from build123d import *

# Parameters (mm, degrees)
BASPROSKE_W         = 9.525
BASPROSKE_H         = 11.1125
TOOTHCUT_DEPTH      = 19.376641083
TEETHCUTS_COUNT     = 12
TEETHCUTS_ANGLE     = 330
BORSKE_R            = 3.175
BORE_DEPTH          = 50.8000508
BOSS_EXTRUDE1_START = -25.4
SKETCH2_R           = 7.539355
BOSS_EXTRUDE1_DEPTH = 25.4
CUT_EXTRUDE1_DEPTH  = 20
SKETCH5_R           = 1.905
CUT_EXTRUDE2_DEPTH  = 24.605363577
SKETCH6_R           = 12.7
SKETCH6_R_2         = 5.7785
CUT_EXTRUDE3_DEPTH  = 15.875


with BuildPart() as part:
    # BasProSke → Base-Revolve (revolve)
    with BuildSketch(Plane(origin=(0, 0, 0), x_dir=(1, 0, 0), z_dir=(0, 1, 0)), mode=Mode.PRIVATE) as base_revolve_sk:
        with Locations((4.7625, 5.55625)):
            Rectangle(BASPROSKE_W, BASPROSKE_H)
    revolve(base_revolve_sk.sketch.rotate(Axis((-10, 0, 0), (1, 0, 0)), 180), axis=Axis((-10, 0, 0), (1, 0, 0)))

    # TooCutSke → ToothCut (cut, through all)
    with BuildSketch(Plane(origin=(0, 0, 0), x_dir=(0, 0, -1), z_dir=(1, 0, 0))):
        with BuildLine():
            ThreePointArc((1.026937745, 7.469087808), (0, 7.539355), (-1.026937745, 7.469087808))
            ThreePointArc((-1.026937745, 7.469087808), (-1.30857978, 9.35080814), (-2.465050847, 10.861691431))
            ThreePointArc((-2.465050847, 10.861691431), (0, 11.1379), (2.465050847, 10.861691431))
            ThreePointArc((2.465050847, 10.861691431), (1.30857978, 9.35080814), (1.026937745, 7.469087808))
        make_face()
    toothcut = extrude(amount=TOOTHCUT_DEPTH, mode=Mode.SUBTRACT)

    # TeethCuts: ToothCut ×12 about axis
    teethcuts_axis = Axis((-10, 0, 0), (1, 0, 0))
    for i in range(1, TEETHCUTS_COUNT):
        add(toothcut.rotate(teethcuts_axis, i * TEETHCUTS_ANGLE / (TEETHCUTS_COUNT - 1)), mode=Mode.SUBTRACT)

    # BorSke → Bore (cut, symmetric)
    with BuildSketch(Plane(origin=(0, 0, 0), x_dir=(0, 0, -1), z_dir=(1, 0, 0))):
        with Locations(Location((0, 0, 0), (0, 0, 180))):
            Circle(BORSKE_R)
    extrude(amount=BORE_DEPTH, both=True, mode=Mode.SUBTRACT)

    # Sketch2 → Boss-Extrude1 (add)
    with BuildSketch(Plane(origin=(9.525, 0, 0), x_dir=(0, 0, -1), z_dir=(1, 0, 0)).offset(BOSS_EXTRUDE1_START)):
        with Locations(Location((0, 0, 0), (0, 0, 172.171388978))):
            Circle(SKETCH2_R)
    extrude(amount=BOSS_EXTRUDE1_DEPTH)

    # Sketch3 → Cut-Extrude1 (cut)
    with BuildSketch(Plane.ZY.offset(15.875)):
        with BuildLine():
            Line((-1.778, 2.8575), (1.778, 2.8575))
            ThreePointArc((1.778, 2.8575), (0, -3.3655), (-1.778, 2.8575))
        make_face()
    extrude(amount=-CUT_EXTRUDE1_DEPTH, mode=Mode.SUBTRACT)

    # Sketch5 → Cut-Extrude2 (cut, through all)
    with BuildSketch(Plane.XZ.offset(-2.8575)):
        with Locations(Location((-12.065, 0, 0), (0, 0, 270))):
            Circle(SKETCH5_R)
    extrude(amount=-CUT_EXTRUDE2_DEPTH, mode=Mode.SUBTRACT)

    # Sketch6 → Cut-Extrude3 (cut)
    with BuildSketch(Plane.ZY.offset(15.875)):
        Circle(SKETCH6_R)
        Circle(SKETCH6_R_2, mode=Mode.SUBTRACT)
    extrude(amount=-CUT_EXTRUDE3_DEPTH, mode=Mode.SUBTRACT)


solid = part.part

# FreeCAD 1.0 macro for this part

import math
import FreeCAD as App
import Part
import Sketcher
from FreeCAD import Vector
Q = App.Units.Quantity


def add_polygon(sketch, points):
    """Adds a closed chain of lines whose ends are joined by coincident constraints."""
    first, n = sketch.GeometryCount, len(points)
    for a, b in zip(points, points[1:] + points[:1]):
        sketch.addGeometry(Part.LineSegment(App.Vector(*a, 0), App.Vector(*b, 0)), False)
    for i in range(n):
        sketch.addConstraint(Sketcher.Constraint("Coincident", first + i, 2, first + (i + 1) % n, 1))

doc = App.newDocument("Part")
params = doc.addObject("Spreadsheet::Sheet", "Params")
for row, (alias, value) in enumerate([
    ("sketch1_width", "0.375 in"),
    ("sketch1_height", "0.4375 in"),
    ("revolution_angle", "360 deg"),
    ("sketch2_radius", "0.15 in"),
    ("sketch3_diameter", "0.25 in"),
    ("pocket2_length", "101.600102 mm"),
    ("pad1_length", "1 in"),
    ("sketch5_height", "0.14 in"),
    ("pocket3_length", "20 mm"),
    ("sketch6_diameter", "0.15 in"),
    ("sketch7_diameter", "1 in"),
    ("sketch7_diameter2", "0.455 in"),
    ("pocket5_length", "0.625 in"),
], start=1):
    params.set(f"A{row}", alias)
    params.set(f"B{row}", "=" + value)
    params.setAlias(f"B{row}", alias)

body = doc.addObject("PartDesign::Body", "Body")

# Sketch on XZ plane
sketch1 = body.newObject("Sketcher::SketchObject", "Sketch")
sketch1.AttachmentSupport = (doc.getObject("XZ_Plane"), [""])
sketch1.MapMode = "FlatFace"
add_polygon(sketch1, [(0, -11), (0, 0), (10, 0), (10, -11)])  # lines 0-3
sketch1.addConstraint(Sketcher.Constraint("Vertical", 0))
sketch1.addConstraint(Sketcher.Constraint("Horizontal", 1))
sketch1.addConstraint(Sketcher.Constraint("Vertical", 2))
sketch1.addConstraint(Sketcher.Constraint("Horizontal", 3))
sketch1.addConstraint(Sketcher.Constraint("Coincident", 0, 2, -1, 1))
sketch1.addConstraint(Sketcher.Constraint("DistanceX", 1, 1, 1, 2, Q("0.375 in")))
sketch1.addConstraint(Sketcher.Constraint("DistanceY", 0, 1, 0, 2, Q("0.4375 in")))
sketch1.setExpression("Constraints[9]", "Params.sketch1_width")
sketch1.setExpression("Constraints[10]", "Params.sketch1_height")
revolution = body.newObject("PartDesign::Revolution", "Revolution")
revolution.Profile = sketch1
revolution.ReferenceAxis = (sketch1, ["H_Axis"])
revolution.setExpression("Angle", "Params.revolution_angle")

# Sketch on YZ plane
sketch2 = body.newObject("Sketcher::SketchObject", "Sketch001")
sketch2.AttachmentSupport = (doc.getObject("YZ_Plane"), [""])
sketch2.MapMode = "FlatFace"
sketch2.addGeometry(Part.ArcOfCircle(Part.Circle(Vector(0, 0, 0), Vector(0, 0, 1), 7.5), math.radians(-7.83), math.radians(7.83)), False)
sketch2.addGeometry(Part.ArcOfCircle(Part.Circle(Vector(7.9, -4.8, 0), Vector(0, 0, 1), 3.8), math.radians(38), math.radians(96)), False)
sketch2.addGeometry(Part.ArcOfCircle(Part.Circle(Vector(0, 0, 0), Vector(0, 0, 1), 11.1), math.radians(-13), math.radians(13)), False)
sketch2.addGeometry(Part.ArcOfCircle(Part.Circle(Vector(7.9, 4.8, 0), Vector(0, 0, 1), 3.8), math.radians(-96), math.radians(-38)), False)
sketch2.addConstraint(Sketcher.Constraint("Coincident", 0, 1, 1, 2))
sketch2.addConstraint(Sketcher.Constraint("Coincident", 1, 1, 2, 1))
sketch2.addConstraint(Sketcher.Constraint("Coincident", 2, 2, 3, 2))
sketch2.addConstraint(Sketcher.Constraint("Coincident", 3, 1, 0, 2))
sketch2.addConstraint(Sketcher.Constraint("Coincident", 0, 3, -1, 1))
sketch2.addConstraint(Sketcher.Constraint("Coincident", 2, 3, -1, 1))
sketch2.addConstraint(Sketcher.Constraint("Equal", 1, 3))
sketch2.addConstraint(Sketcher.Constraint("Symmetric", 1, 3, 3, 3, -1))
sketch2.addConstraint(Sketcher.Constraint("Radius", 1, Q("0.15 in")))
sketch2.addConstraint(Sketcher.Constraint("Radius", 2, Q("0.4385 in")))
sketch2.addConstraint(Sketcher.Constraint("DistanceX", -1, 1, 1, 3, Q("0.3096001 in")))
sketch2.addConstraint(Sketcher.Constraint("Radius", 0, Q("7.539355 mm")))
sketch2.addConstraint(Sketcher.Constraint("DistanceY", 1, 1, 2, 2, Q("4.930102 mm")))
sketch2.setExpression("Constraints[8]", "Params.sketch2_radius")
pocket1 = body.newObject("PartDesign::Pocket", "Pocket")
pocket1.Profile = sketch2
pocket1.Type = "ThroughAll"
pocket1.Reversed = True
doc.recompute()

polarpattern = body.newObject("PartDesign::PolarPattern", "PolarPattern")
polarpattern.Originals = [pocket1]
polarpattern.Axis = (doc.getObject("X_Axis"), [""])
polarpattern.Angle = 360
polarpattern.Occurrences = 12
body.Tip = polarpattern

# Sketch on YZ plane
sketch3 = body.newObject("Sketcher::SketchObject", "Sketch002")
sketch3.AttachmentSupport = (doc.getObject("YZ_Plane"), [""])
sketch3.MapMode = "FlatFace"
sketch3.addGeometry(Part.Circle(Vector(0, 0, 0), Vector(0, 0, 1), 3.2), False)
sketch3.addConstraint(Sketcher.Constraint("Coincident", 0, 3, -1, 1))
sketch3.addConstraint(Sketcher.Constraint("Diameter", 0, Q("0.25 in")))
sketch3.setExpression("Constraints[1]", "Params.sketch3_diameter")
pocket2 = body.newObject("PartDesign::Pocket", "Pocket001")
pocket2.Profile = sketch3
pocket2.setExpression("Length", "Params.pocket2_length")
pocket2.Midplane = True

# Sketch on YZ plane
sketch4 = body.newObject("Sketcher::SketchObject", "Sketch003")
sketch4.AttachmentSupport = (doc.getObject("YZ_Plane"), [""])
sketch4.MapMode = "FlatFace"
sketch4.AttachmentOffset = App.Placement(Vector(0, 0, -0.625 * 25.4), App.Rotation())
sketch4.addGeometry(Part.Circle(Vector(0, 0, 0), Vector(0, 0, 1), 8), False)
sketch4.addConstraint(Sketcher.Constraint("Coincident", 0, 3, -1, 1))
sketch4.addConstraint(Sketcher.Constraint("Diameter", 0, Q("15.07871 mm")))
pad1 = body.newObject("PartDesign::Pad", "Pad")
pad1.Profile = sketch4
pad1.setExpression("Length", "Params.pad1_length")

# Sketch on YZ plane
sketch5 = body.newObject("Sketcher::SketchObject", "Sketch004")
sketch5.AttachmentSupport = (doc.getObject("YZ_Plane"), [""])
sketch5.MapMode = "FlatFace"
sketch5.AttachmentOffset = App.Placement(Vector(0, 0, -0.625 * 25.4), App.Rotation())
sketch5.addGeometry(Part.LineSegment(Vector(2.9, 1.8, 0), Vector(2.9, -1.8, 0)), False)
sketch5.addGeometry(Part.ArcOfCircle(Part.Circle(Vector(0, 0, 0), Vector(0, 0, 1), 3.4), math.radians(32), math.radians(328)), False)
sketch5.addConstraint(Sketcher.Constraint("Coincident", 0, 1, 1, 1))
sketch5.addConstraint(Sketcher.Constraint("Coincident", 1, 2, 0, 2))
sketch5.addConstraint(Sketcher.Constraint("Vertical", 0))
sketch5.addConstraint(Sketcher.Constraint("Coincident", 1, 3, -1, 1))
sketch5.addConstraint(Sketcher.Constraint("DistanceY", 0, 2, 0, 1, Q("0.14 in")))
sketch5.addConstraint(Sketcher.Constraint("Radius", 1, Q("0.1325 in")))
sketch5.setExpression("Constraints[4]", "Params.sketch5_height")
pocket3 = body.newObject("PartDesign::Pocket", "Pocket002")
pocket3.Profile = sketch5
pocket3.setExpression("Length", "Params.pocket3_length")
pocket3.Reversed = True

# Sketch on XZ plane
sketch6 = body.newObject("Sketcher::SketchObject", "Sketch005")
sketch6.AttachmentSupport = (doc.getObject("XZ_Plane"), [""])
sketch6.MapMode = "FlatFace"
sketch6.AttachmentOffset = App.Placement(Vector(0, 0, -0.1125 * 25.4), App.Rotation())
sketch6.addGeometry(Part.Circle(Vector(-12.1, 0, 0), Vector(0, 0, 1), 1.9), False)
sketch6.addConstraint(Sketcher.Constraint("PointOnObject", 0, 3, -1))
sketch6.addConstraint(Sketcher.Constraint("Diameter", 0, Q("0.15 in")))
sketch6.addConstraint(Sketcher.Constraint("DistanceX", 0, 3, -1, 1, Q("0.475 in")))
sketch6.setExpression("Constraints[1]", "Params.sketch6_diameter")
pocket4 = body.newObject("PartDesign::Pocket", "Pocket003")
pocket4.Profile = sketch6
pocket4.Type = "ThroughAll"

# Sketch on YZ plane
sketch7 = body.newObject("Sketcher::SketchObject", "Sketch006")
sketch7.AttachmentSupport = (doc.getObject("YZ_Plane"), [""])
sketch7.MapMode = "FlatFace"
sketch7.AttachmentOffset = App.Placement(Vector(0, 0, -0.625 * 25.4), App.Rotation())
sketch7.addGeometry(Part.Circle(Vector(0, 0, 0), Vector(0, 0, 1), 13), False)
sketch7.addGeometry(Part.Circle(Vector(0, 0, 0), Vector(0, 0, 1), 6), False)
sketch7.addConstraint(Sketcher.Constraint("Coincident", 0, 3, -1, 1))
sketch7.addConstraint(Sketcher.Constraint("Coincident", 1, 3, -1, 1))
sketch7.addConstraint(Sketcher.Constraint("Diameter", 0, Q("1 in")))
sketch7.addConstraint(Sketcher.Constraint("Diameter", 1, Q("0.455 in")))
sketch7.setExpression("Constraints[2]", "Params.sketch7_diameter")
sketch7.setExpression("Constraints[3]", "Params.sketch7_diameter2")
pocket5 = body.newObject("PartDesign::Pocket", "Pocket004")
pocket5.Profile = sketch7
pocket5.setExpression("Length", "Params.pocket5_length")
pocket5.Reversed = True

doc.recompute()
